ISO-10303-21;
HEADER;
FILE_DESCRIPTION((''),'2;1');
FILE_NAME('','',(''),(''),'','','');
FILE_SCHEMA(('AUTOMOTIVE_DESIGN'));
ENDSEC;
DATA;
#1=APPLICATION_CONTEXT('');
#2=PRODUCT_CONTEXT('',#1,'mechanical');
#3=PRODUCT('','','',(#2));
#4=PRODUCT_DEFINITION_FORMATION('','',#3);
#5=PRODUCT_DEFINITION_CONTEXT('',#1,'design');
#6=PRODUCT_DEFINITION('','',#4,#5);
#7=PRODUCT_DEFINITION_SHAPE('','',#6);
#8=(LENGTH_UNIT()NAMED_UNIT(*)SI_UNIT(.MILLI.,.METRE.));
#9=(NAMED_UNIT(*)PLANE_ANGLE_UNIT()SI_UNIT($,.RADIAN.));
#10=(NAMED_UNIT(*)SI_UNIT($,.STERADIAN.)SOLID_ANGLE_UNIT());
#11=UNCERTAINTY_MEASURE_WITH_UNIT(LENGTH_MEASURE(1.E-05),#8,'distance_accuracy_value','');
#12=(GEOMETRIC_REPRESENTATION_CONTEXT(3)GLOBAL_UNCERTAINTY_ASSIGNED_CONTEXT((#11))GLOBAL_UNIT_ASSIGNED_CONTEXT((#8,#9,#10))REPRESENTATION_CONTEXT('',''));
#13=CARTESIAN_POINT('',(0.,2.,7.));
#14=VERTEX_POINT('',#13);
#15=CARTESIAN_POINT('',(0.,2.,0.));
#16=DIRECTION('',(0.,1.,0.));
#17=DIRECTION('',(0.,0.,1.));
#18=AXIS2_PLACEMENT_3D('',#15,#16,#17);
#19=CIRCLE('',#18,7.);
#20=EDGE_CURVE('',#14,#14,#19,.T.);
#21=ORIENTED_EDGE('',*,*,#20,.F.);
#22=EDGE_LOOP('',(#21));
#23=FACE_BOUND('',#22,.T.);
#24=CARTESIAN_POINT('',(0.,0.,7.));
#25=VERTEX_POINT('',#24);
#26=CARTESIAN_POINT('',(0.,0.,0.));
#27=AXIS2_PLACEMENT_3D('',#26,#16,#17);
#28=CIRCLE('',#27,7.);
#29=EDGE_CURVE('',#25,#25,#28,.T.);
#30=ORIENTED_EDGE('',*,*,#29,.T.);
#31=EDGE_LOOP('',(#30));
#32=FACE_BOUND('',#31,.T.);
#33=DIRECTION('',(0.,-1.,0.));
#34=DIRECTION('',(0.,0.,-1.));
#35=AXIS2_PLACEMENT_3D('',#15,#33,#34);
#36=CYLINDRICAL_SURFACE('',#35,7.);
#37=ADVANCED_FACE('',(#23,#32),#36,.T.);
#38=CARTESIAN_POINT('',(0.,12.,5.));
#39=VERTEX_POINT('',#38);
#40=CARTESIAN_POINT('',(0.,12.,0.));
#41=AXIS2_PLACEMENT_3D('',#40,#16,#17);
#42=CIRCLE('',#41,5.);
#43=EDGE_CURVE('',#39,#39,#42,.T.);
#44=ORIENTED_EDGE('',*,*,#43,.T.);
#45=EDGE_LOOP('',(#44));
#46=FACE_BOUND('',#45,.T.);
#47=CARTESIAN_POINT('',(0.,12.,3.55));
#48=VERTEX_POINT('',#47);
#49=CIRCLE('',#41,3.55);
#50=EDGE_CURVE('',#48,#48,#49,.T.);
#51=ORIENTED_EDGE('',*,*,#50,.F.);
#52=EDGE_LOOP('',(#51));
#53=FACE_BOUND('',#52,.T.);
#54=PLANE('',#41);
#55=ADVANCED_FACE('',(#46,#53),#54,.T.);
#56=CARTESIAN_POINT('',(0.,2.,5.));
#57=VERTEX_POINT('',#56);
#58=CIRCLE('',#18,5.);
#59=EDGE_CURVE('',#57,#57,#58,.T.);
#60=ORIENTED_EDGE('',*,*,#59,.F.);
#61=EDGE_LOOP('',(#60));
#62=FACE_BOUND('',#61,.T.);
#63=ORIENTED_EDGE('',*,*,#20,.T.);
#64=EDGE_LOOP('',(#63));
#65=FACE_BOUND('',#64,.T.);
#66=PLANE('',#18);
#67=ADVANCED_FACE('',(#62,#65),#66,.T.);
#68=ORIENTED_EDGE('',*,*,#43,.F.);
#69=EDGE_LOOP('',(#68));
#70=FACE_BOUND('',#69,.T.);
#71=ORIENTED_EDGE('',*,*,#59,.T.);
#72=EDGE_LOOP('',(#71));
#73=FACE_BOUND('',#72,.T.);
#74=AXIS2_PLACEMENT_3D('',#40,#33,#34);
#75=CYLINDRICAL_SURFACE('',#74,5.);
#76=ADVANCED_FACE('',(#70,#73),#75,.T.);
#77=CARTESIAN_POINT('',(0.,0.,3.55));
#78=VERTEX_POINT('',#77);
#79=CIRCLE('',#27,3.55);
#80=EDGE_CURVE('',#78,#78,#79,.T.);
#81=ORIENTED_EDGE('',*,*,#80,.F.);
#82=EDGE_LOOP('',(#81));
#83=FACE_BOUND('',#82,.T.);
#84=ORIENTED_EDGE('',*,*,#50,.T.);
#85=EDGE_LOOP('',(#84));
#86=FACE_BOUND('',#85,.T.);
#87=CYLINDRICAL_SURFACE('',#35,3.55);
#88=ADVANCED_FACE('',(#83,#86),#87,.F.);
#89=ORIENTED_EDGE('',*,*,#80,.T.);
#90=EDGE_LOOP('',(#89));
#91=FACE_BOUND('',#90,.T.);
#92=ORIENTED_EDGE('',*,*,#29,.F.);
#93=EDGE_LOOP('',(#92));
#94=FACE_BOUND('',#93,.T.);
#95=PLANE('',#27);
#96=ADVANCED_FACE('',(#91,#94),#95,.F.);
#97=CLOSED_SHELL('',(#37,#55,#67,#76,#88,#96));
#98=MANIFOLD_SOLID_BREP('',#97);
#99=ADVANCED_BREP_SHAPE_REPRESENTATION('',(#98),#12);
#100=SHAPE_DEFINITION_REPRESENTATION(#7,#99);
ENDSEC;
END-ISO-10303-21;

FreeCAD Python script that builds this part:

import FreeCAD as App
import Part
import Sketcher

V = App.Vector

doc = App.newDocument("Part")
params = doc.addObject("Spreadsheet::Sheet", "Params")
for row, (alias, value) in enumerate([
    ("sketch1_diameter", "14 mm"),
    ("sketch1_diameter2", "7.1 mm"),
    ("pad1_length", "2 mm"),
    ("sketch2_diameter", "10 mm"),
    ("sketch2_diameter2", "7.1 mm"),
    ("pad2_length", "10 mm"),
], start=1):
    params.set(f"A{row}", alias)
    params.set(f"B{row}", "=" + value)
    params.setAlias(f"B{row}", alias)

body = doc.addObject("PartDesign::Body", "Body")

sketch1 = body.newObject("Sketcher::SketchObject", "Sketch")
sketch1.AttachmentSupport = (doc.getObject("XZ_Plane"), [""])
sketch1.MapMode = "FlatFace"
sketch1.addGeometry([
    Part.Circle(V(0, 0, 0), V(0, 0, 1), 7),
    Part.Circle(V(0, 0, 0), V(0, 0, 1), 3.55),
], False)
sketch1.addConstraint([
    Sketcher.Constraint("Coincident", 0, 3, -1, 1),
    Sketcher.Constraint("Coincident", 1, 3, -1, 1),
    Sketcher.Constraint("Diameter", 0, 14.0),
    Sketcher.Constraint("Diameter", 1, 7.1),
])
sketch1.setExpression("Constraints[2]", "Params.sketch1_diameter")
sketch1.setExpression("Constraints[3]", "Params.sketch1_diameter2")
pad1 = body.newObject("PartDesign::Pad", "Pad")
pad1.Profile = sketch1
pad1.setExpression("Length", "Params.pad1_length")
pad1.Reversed = True

sketch2 = body.newObject("Sketcher::SketchObject", "Sketch001")
sketch2.AttachmentSupport = (doc.getObject("XZ_Plane"), [""])
sketch2.MapMode = "FlatFace"
sketch2.AttachmentOffset = App.Placement(V(0, 0, -2), App.Rotation())
sketch2.addGeometry([
    Part.Circle(V(0, 0, 0), V(0, 0, 1), 5),
    Part.Circle(V(0, 0, 0), V(0, 0, 1), 3.55),
], False)
sketch2.addConstraint([
    Sketcher.Constraint("Coincident", 0, 3, -1, 1),
    Sketcher.Constraint("Coincident", 1, 3, -1, 1),
    Sketcher.Constraint("Diameter", 0, 10.0),
    Sketcher.Constraint("Diameter", 1, 7.1),
])
sketch2.setExpression("Constraints[2]", "Params.sketch2_diameter")
sketch2.setExpression("Constraints[3]", "Params.sketch2_diameter2")
pad2 = body.newObject("PartDesign::Pad", "Pad001")
pad2.Profile = sketch2
pad2.setExpression("Length", "Params.pad2_length")
pad2.Reversed = True

doc.recompute()
